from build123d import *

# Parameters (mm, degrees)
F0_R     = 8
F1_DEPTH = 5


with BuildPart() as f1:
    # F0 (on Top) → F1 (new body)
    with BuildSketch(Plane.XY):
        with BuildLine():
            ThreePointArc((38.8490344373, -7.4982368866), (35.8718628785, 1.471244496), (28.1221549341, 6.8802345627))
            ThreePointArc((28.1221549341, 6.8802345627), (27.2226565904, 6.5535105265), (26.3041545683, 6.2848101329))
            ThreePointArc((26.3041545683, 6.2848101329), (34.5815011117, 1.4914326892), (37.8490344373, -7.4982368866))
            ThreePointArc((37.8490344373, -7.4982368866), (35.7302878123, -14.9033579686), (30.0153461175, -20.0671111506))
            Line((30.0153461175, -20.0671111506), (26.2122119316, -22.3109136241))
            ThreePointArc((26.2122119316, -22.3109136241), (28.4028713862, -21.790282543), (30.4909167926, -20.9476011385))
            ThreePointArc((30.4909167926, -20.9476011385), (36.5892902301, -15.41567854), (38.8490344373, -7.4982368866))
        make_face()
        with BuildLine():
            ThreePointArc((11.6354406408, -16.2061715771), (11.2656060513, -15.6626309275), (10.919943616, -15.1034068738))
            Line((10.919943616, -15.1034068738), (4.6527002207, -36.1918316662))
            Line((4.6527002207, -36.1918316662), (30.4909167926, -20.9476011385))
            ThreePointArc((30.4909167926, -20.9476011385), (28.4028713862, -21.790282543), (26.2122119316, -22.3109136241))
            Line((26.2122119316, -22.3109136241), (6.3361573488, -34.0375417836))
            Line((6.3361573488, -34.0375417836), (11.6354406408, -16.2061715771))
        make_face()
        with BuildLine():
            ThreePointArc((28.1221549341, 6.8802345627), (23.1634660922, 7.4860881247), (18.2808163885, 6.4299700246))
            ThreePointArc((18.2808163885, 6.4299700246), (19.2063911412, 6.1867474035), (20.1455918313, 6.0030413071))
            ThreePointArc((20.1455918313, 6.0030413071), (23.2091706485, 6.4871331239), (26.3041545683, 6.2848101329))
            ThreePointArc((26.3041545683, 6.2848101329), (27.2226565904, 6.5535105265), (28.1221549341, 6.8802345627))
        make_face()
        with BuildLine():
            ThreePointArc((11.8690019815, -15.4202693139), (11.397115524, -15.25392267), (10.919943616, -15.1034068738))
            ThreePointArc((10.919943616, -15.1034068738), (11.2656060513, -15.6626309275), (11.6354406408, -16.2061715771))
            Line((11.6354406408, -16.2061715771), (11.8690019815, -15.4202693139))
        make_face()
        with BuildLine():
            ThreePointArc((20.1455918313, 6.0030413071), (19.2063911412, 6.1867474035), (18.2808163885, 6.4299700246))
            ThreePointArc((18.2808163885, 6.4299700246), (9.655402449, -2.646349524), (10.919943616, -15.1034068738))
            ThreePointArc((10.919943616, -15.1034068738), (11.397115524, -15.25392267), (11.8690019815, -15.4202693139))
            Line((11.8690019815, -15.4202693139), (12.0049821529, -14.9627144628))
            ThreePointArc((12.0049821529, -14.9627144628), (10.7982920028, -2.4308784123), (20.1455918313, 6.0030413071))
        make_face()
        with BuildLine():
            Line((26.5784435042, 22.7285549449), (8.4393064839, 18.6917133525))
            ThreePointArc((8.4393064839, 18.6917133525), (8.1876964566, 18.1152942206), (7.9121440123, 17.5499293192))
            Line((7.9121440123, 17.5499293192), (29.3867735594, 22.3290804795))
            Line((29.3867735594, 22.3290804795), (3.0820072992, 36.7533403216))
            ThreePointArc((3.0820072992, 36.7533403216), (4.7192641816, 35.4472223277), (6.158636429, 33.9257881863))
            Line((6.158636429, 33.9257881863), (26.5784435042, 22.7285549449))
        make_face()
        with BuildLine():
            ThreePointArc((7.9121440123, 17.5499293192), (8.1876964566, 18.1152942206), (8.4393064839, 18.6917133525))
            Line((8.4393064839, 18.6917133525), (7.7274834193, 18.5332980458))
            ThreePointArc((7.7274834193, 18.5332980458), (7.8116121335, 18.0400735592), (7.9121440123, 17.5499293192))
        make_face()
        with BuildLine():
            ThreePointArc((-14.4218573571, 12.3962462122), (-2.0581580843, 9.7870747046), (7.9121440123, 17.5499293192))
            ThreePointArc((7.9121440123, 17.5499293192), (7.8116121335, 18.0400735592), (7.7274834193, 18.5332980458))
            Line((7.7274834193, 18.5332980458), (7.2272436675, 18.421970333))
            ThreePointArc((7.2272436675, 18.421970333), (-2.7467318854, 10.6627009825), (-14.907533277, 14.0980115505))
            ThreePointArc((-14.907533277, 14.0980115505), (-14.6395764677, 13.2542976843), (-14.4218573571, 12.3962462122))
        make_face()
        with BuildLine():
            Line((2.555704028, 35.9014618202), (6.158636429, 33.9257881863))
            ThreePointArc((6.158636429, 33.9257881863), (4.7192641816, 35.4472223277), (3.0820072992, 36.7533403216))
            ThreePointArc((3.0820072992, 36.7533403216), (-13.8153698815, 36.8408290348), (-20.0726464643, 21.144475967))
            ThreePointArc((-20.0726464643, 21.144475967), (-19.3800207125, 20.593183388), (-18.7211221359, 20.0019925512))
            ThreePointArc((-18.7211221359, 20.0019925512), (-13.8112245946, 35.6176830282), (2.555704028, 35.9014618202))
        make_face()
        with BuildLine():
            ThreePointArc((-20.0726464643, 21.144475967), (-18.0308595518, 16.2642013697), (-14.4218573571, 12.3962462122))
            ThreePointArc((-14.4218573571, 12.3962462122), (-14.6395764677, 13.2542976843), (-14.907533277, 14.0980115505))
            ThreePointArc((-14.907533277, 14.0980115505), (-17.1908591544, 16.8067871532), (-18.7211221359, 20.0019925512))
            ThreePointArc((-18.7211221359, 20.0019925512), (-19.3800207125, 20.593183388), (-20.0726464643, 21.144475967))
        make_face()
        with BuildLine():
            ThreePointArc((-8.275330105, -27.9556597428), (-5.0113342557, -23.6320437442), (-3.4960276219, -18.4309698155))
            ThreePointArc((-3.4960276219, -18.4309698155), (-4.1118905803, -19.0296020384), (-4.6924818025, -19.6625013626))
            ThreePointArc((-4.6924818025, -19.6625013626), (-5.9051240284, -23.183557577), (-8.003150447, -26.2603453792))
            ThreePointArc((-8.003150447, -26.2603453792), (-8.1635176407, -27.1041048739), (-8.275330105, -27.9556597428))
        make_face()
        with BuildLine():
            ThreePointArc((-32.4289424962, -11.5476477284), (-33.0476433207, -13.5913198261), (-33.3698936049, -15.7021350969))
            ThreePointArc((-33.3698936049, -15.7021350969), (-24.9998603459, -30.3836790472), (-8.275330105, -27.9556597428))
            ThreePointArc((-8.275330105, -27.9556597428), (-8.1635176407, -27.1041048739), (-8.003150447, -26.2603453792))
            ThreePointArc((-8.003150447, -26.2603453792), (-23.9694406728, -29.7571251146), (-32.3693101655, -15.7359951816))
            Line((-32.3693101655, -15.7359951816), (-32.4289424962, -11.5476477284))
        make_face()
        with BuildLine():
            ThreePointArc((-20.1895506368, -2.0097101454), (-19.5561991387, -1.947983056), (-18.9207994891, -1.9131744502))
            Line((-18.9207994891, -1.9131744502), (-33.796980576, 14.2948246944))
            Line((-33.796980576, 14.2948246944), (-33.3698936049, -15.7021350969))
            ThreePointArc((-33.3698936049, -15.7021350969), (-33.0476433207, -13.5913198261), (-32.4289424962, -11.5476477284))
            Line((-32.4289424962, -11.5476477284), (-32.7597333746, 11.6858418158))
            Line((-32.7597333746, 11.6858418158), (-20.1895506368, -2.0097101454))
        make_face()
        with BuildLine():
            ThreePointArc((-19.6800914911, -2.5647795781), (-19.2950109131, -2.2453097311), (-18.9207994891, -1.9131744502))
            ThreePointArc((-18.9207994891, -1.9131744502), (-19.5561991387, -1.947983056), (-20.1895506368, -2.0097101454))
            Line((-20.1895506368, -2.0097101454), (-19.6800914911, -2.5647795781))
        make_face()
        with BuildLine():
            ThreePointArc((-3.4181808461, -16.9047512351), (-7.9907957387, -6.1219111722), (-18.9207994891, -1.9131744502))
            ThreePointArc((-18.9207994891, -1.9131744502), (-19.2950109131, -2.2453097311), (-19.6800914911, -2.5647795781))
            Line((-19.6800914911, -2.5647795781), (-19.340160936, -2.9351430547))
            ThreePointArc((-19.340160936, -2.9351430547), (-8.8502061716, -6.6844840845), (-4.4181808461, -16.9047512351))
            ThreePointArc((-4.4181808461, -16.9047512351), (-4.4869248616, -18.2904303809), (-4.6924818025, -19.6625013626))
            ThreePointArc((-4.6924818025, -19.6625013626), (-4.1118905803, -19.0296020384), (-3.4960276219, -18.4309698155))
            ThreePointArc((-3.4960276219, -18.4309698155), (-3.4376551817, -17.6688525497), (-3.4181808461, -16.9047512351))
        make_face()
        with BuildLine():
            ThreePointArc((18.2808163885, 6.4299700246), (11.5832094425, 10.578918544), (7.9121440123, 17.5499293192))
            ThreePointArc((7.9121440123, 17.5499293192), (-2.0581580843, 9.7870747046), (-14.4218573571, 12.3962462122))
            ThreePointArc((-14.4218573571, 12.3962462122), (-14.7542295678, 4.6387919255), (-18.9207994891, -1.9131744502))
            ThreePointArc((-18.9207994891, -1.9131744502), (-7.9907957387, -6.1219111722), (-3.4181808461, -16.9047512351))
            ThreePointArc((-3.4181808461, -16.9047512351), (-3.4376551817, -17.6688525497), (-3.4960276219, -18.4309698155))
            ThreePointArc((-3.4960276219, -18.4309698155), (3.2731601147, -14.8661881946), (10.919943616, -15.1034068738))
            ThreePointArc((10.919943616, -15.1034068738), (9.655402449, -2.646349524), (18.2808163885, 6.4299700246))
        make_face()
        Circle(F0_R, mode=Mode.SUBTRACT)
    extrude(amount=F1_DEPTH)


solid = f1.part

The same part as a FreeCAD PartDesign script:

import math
import FreeCAD as App
import Part
import Sketcher

doc = App.newDocument("Part")
body = doc.addObject("PartDesign::Body", "Body")

# Sketch on XY plane
sketch1 = body.newObject("Sketcher::SketchObject", "Sketch")
sketch1.AttachmentSupport = (doc.getObject("XY_Plane"), [""])
sketch1.MapMode = "FlatFace"
sketch1.addGeometry([
    Part.ArcOfCircle(Part.Circle(App.Vector(23.849034, -7.498237, 0), App.Vector(0, 0, 1), 15), math.radians(0), math.radians(73.448641)),  # 0
    Part.ArcOfCircle(Part.Circle(App.Vector(23.849034, -7.498237, 0), App.Vector(0, 0, 1), 15), math.radians(73.448641), math.radians(111.79054)),  # 1
    Part.ArcOfCircle(Part.Circle(App.Vector(22.553937, 20.808441, 0), App.Vector(0, 0, 1), 15), math.radians(-167.453367), math.radians(-106.551359)),  # 2
    Part.LineSegment(App.Vector(7.912144, 17.549929, 0), App.Vector(29.386774, 22.32908, 0)),  # 3
    Part.LineSegment(App.Vector(29.386774, 22.32908, 0), App.Vector(3.082007, 36.75334, 0)),  # 4
    Part.ArcOfCircle(Part.Circle(App.Vector(-5.430854, 24.402988, 0), App.Vector(0, 0, 1), 15), math.radians(55.422249), math.radians(192.546633)),  # 5
    Part.ArcOfCircle(Part.Circle(App.Vector(-5.430854, 24.402988, 0), App.Vector(0, 0, 1), 15), math.radians(-167.453367), math.radians(-126.826956)),  # 6
    Part.ArcOfCircle(Part.Circle(App.Vector(-29.06365, 9.137734, 0), App.Vector(0, 0, 1), 15), math.radians(-47.453367), math.radians(12.546633)),  # 7
    Part.LineSegment(App.Vector(-18.920799, -1.913174, 0), App.Vector(-33.796981, 14.294825, 0)),  # 8
    Part.LineSegment(App.Vector(-33.796981, 14.294825, 0), App.Vector(-33.369894, -15.702135, 0)),  # 9
    Part.ArcOfCircle(Part.Circle(App.Vector(-18.418181, -16.904751, 0), App.Vector(0, 0, 1), 15), math.radians(175.401409), math.radians(312.546633)),  # 10
    Part.ArcOfCircle(Part.Circle(App.Vector(-18.418181, -16.904751, 0), App.Vector(0, 0, 1), 15), math.radians(-47.453367), math.radians(-5.839832)),  # 11
    Part.ArcOfCircle(Part.Circle(App.Vector(6.646823, -29.481878, 0), App.Vector(0, 0, 1), 15), math.radians(73.448641), math.radians(132.546633)),  # 12
    Part.LineSegment(App.Vector(10.919944, -15.103407, 0), App.Vector(4.6527, -36.191832, 0)),  # 13
    Part.LineSegment(App.Vector(4.6527, -36.191832, 0), App.Vector(30.490917, -20.947601, 0)),  # 14
    Part.ArcOfCircle(Part.Circle(App.Vector(23.849034, -7.498237, 0), App.Vector(0, 0, 1), 15), math.radians(-63.717832), math.radians(0)),  # 15
    Part.ArcOfCircle(Part.Circle(App.Vector(-18.418181, -16.904751, 0), App.Vector(0, 0, 1), 14), math.radians(0), math.radians(93.775988)),  # 16
    Part.ArcOfCircle(Part.Circle(App.Vector(-18.418181, -16.904751, 0), App.Vector(0, 0, 1), 14), math.radians(-41.93266), math.radians(0)),  # 17
    Part.ArcOfCircle(Part.Circle(App.Vector(-18.418181, -16.904751, 0), App.Vector(0, 0, 1), 14), math.radians(175.211227), math.radians(318.06734)),  # 18
    Part.LineSegment(App.Vector(-32.36931, -15.735995, 0), App.Vector(-32.428942, -11.547648, 0)),  # 19
    Part.LineSegment(App.Vector(-32.428942, -11.547648, 0), App.Vector(-32.759733, 11.685842, 0)),  # 20
    Part.LineSegment(App.Vector(-32.759733, 11.685842, 0), App.Vector(-20.189551, -2.00971, 0)),  # 21
    Part.LineSegment(App.Vector(-20.189551, -2.00971, 0), App.Vector(-19.680091, -2.56478, 0)),  # 22
    Part.LineSegment(App.Vector(-19.680091, -2.56478, 0), App.Vector(-19.340161, -2.935143, 0)),  # 23
    Part.Circle(App.Vector(0, 0, 0), App.Vector(0, 0, 1), 8),  # 24
    Part.ArcOfCircle(Part.Circle(App.Vector(23.849034, -7.498237, 0), App.Vector(0, 0, 1), 14), math.radians(79.900058), math.radians(105.339123)),  # 25
    Part.ArcOfCircle(Part.Circle(App.Vector(23.849034, -7.498237, 0), App.Vector(0, 0, 1), 14), math.radians(0), math.radians(79.900058)),  # 26
    Part.ArcOfCircle(Part.Circle(App.Vector(23.849034, -7.498237, 0), App.Vector(0, 0, 1), 14), math.radians(-63.86735), math.radians(0)),  # 27
    Part.LineSegment(App.Vector(30.015346, -20.067111, 0), App.Vector(26.212212, -22.310914, 0)),  # 28
    Part.LineSegment(App.Vector(26.212212, -22.310914, 0), App.Vector(6.336157, -34.037542, 0)),  # 29
    Part.LineSegment(App.Vector(6.336157, -34.037542, 0), App.Vector(11.635441, -16.206172, 0)),  # 30
    Part.LineSegment(App.Vector(11.635441, -16.206172, 0), App.Vector(11.869002, -15.420269, 0)),  # 31
    Part.LineSegment(App.Vector(11.869002, -15.420269, 0), App.Vector(12.004982, -14.962714, 0)),  # 32
    Part.ArcOfCircle(Part.Circle(App.Vector(23.849034, -7.498237, 0), App.Vector(0, 0, 1), 14), math.radians(105.339123), math.radians(212.220362)),  # 33
    Part.LineSegment(App.Vector(26.578444, 22.728555, 0), App.Vector(8.439306, 18.691713, 0)),  # 34
    Part.LineSegment(App.Vector(8.439306, 18.691713, 0), App.Vector(7.727483, 18.533298, 0)),  # 35
    Part.LineSegment(App.Vector(7.727483, 18.533298, 0), App.Vector(7.227244, 18.42197, 0)),  # 36
    Part.ArcOfCircle(Part.Circle(App.Vector(-5.430854, 24.402988, 0), App.Vector(0, 0, 1), 14), math.radians(-132.602314), math.radians(-25.290982)),  # 37
    Part.ArcOfCircle(Part.Circle(App.Vector(-5.430854, 24.402988, 0), App.Vector(0, 0, 1), 14), math.radians(-161.67801), math.radians(-132.602314)),  # 38
    Part.ArcOfCircle(Part.Circle(App.Vector(-5.430854, 24.402988, 0), App.Vector(0, 0, 1), 14), math.radians(55.217105), math.radians(198.32199)),  # 39
    Part.LineSegment(App.Vector(2.555704, 35.901462, 0), App.Vector(6.158636, 33.925788, 0)),  # 40
    Part.LineSegment(App.Vector(6.158636, 33.925788, 0), App.Vector(26.578444, 22.728555, 0)),  # 41
], False)
sketch1.addConstraint([
    Sketcher.Constraint("Tangent", 0, 2, 1, 1),
    Sketcher.Constraint("Coincident", 1, 2, 2, 2),
    Sketcher.Constraint("Coincident", 2, 1, 3, 1),
    Sketcher.Constraint("Coincident", 3, 2, 4, 1),
    Sketcher.Constraint("Coincident", 4, 2, 5, 1),
    Sketcher.Constraint("Tangent", 5, 2, 6, 1),
    Sketcher.Constraint("Coincident", 6, 2, 7, 2),
    Sketcher.Constraint("Coincident", 7, 1, 8, 1),
    Sketcher.Constraint("Coincident", 8, 2, 9, 1),
    Sketcher.Constraint("Coincident", 9, 2, 10, 1),
    Sketcher.Constraint("Tangent", 10, 2, 11, 1),
    Sketcher.Constraint("Coincident", 11, 2, 12, 2),
    Sketcher.Constraint("Coincident", 12, 1, 13, 1),
    Sketcher.Constraint("Coincident", 13, 2, 14, 1),
    Sketcher.Constraint("Coincident", 14, 2, 15, 1),
    Sketcher.Constraint("Tangent", 15, 2, 0, 1),
    Sketcher.Constraint("Tangent", 16, 1, 17, 2),
    Sketcher.Constraint("Tangent", 17, 1, 18, 2),
    Sketcher.Constraint("Coincident", 18, 1, 19, 1),
    Sketcher.Constraint("Coincident", 19, 2, 20, 1),
    Sketcher.Constraint("Coincident", 20, 2, 21, 1),
    Sketcher.Constraint("Coincident", 21, 2, 22, 1),
    Sketcher.Constraint("Coincident", 22, 2, 23, 1),
    Sketcher.Constraint("Coincident", 23, 2, 16, 2),
    Sketcher.Constraint("Tangent", 25, 1, 26, 2),
    Sketcher.Constraint("Tangent", 26, 1, 27, 2),
    Sketcher.Constraint("Coincident", 27, 1, 28, 1),
    Sketcher.Constraint("Coincident", 28, 2, 29, 1),
    Sketcher.Constraint("Coincident", 29, 2, 30, 1),
    Sketcher.Constraint("Coincident", 30, 2, 31, 1),
    Sketcher.Constraint("Coincident", 31, 2, 32, 1),
    Sketcher.Constraint("Coincident", 32, 2, 33, 2),
    Sketcher.Constraint("Tangent", 33, 1, 25, 2),
    Sketcher.Constraint("Coincident", 34, 2, 35, 1),
    Sketcher.Constraint("Coincident", 35, 2, 36, 1),
    Sketcher.Constraint("Coincident", 36, 2, 37, 2),
    Sketcher.Constraint("Tangent", 37, 1, 38, 2),
    Sketcher.Constraint("Tangent", 38, 1, 39, 2),
    Sketcher.Constraint("Coincident", 39, 1, 40, 1),
    Sketcher.Constraint("Coincident", 40, 2, 41, 1),
    Sketcher.Constraint("Coincident", 41, 2, 34, 1),
    Sketcher.Constraint("Coincident", 24, 3, -1, 1),
    Sketcher.Constraint("Coincident", 16, 3, 10, 3),
    Sketcher.Constraint("Coincident", 18, 3, 10, 3),
    Sketcher.Constraint("Coincident", 25, 3, 0, 3),
    Sketcher.Constraint("Coincident", 27, 3, 0, 3),
    Sketcher.Constraint("Coincident", 37, 3, 5, 3),
    Sketcher.Constraint("Coincident", 39, 3, 5, 3),
    Sketcher.Constraint("Equal", 0, 1),
    Sketcher.Constraint("Equal", 1, 2),
    Sketcher.Constraint("Equal", 2, 5),
    Sketcher.Constraint("Equal", 5, 6),
    Sketcher.Constraint("Equal", 6, 7),
    Sketcher.Constraint("Equal", 7, 10),
    Sketcher.Constraint("Equal", 10, 11),
    Sketcher.Constraint("Equal", 11, 12),
    Sketcher.Constraint("Equal", 12, 15),
    Sketcher.Constraint("Equal", 18, 25),
    Sketcher.Constraint("Equal", 27, 33),
    Sketcher.Constraint("Equal", 33, 37),
    Sketcher.Constraint("Parallel", 9, 19),
    Sketcher.Constraint("Parallel", 19, 20),
    Sketcher.Constraint("Parallel", 8, 21),
    Sketcher.Constraint("Parallel", 21, 22),
    Sketcher.Constraint("Parallel", 22, 23),
    Sketcher.Constraint("Parallel", 14, 28),
    Sketcher.Constraint("Parallel", 28, 29),
    Sketcher.Constraint("Parallel", 13, 30),
    Sketcher.Constraint("Parallel", 30, 31),
    Sketcher.Constraint("Parallel", 31, 32),
    Sketcher.Constraint("Parallel", 3, 34),
    Sketcher.Constraint("Parallel", 34, 35),
    Sketcher.Constraint("Parallel", 35, 36),
    Sketcher.Constraint("Parallel", 4, 40),
    Sketcher.Constraint("Parallel", 40, 41),
    Sketcher.Constraint("Horizontal", 33, 3, 15, 2),
    Sketcher.Constraint("Horizontal", 18, 3, 16, 1),
    Sketcher.Constraint("Horizontal", 15, 2, 26, 1),
    Sketcher.Constraint("Equal", 3, 8),
    Sketcher.Constraint("Equal", 4, 9),
    Sketcher.Constraint("Equal", 8, 13),
    Sketcher.Constraint("Equal", 9, 14),
    Sketcher.Constraint("Diameter", 24, 16.0),
    Sketcher.Constraint("Radius", 0, 15.0),
    Sketcher.Constraint("Radius", 16, 14.0),
    Sketcher.Constraint("Distance", 3, 22.0),
    Sketcher.Constraint("Distance", 4, 30.0),
    Sketcher.Constraint("DistanceX", -1, 1, 31, 2, 11.869002),
    Sketcher.Constraint("DistanceX", 7, 1, -1, 1, 18.920799),
    Sketcher.Constraint("DistanceX", -1, 1, 13, 2, 4.6527),
    Sketcher.Constraint("DistanceY", 14, 2, -1, 1, 20.947601),
    Sketcher.Constraint("DistanceY", -1, 1, 35, 2, 18.533298),
    Sketcher.Constraint("Distance", 19, 4.188772),
    Sketcher.Constraint("Distance", 21, 18.589719),
    Sketcher.Constraint("Distance", 28, 4.415708),
    Sketcher.Constraint("DistanceY", -1, 1, 2, 3, 20.808441),
    Sketcher.Constraint("DistanceY", -1, 1, 5, 3, 24.402988),
    Sketcher.Constraint("DistanceX", 7, 3, -1, 1, 29.06365),
    Sketcher.Constraint("DistanceX", 10, 3, -1, 1, 18.418181),
    Sketcher.Constraint("DistanceY", 10, 3, -1, 1, 16.904751),
    Sketcher.Constraint("DistanceY", 12, 3, -1, 1, 29.481878),
    Sketcher.Constraint("DistanceY", -1, 1, 1, 2, 6.42997),
    Sketcher.Constraint("DistanceY", -1, 1, 2, 1, 17.549929),
    Sketcher.Constraint("DistanceY", -1, 1, 3, 2, 22.32908),
    Sketcher.Constraint("DistanceY", -1, 1, 4, 2, 36.75334),
    Sketcher.Constraint("DistanceX", 8, 2, -1, 1, 33.796981),
    Sketcher.Constraint("DistanceX", 10, 2, -1, 1, 8.27533),
    Sketcher.Constraint("DistanceY", 11, 2, -1, 1, 18.43097),
    Sketcher.Constraint("DistanceX", 17, 1, -1, 1, 8.00315),
    Sketcher.Constraint("DistanceX", 18, 1, -1, 1, 32.36931),
    Sketcher.Constraint("DistanceY", -1, 1, 20, 2, 11.685842),
    Sketcher.Constraint("DistanceX", 21, 2, -1, 1, 20.189551),
    Sketcher.Constraint("DistanceX", 22, 2, -1, 1, 19.680091),
    Sketcher.Constraint("DistanceY", -1, 1, 25, 1, 6.28481),
    Sketcher.Constraint("DistanceY", 27, 1, -1, 1, 20.067111),
    Sketcher.Constraint("DistanceY", 29, 2, -1, 1, 34.037542),
    Sketcher.Constraint("DistanceX", -1, 1, 30, 2, 11.635441),
    Sketcher.Constraint("DistanceY", 30, 2, -1, 1, 16.206172),
    Sketcher.Constraint("DistanceX", -1, 1, 33, 1, 20.145592),
    Sketcher.Constraint("DistanceY", -1, 1, 33, 1, 6.003041),
    Sketcher.Constraint("DistanceY", -1, 1, 36, 2, 18.42197),
    Sketcher.Constraint("DistanceY", -1, 1, 37, 1, 14.098012),
    Sketcher.Constraint("DistanceY", -1, 1, 39, 1, 35.901462),
    Sketcher.Constraint("DistanceY", -1, 1, 40, 2, 33.925788),
    Sketcher.Constraint("Distance", 34, 18.582906),
    Sketcher.Constraint("DistanceX", -1, 1, 0, 2, 28.122155),
    Sketcher.Constraint("DistanceX", 5, 2, -1, 1, 20.072646),
    Sketcher.Constraint("DistanceX", 38, 1, -1, 1, 18.721122),
])
pad1 = body.newObject("PartDesign::Pad", "Pad")
pad1.Profile = sketch1
pad1.Length = 5

doc.recompute()
